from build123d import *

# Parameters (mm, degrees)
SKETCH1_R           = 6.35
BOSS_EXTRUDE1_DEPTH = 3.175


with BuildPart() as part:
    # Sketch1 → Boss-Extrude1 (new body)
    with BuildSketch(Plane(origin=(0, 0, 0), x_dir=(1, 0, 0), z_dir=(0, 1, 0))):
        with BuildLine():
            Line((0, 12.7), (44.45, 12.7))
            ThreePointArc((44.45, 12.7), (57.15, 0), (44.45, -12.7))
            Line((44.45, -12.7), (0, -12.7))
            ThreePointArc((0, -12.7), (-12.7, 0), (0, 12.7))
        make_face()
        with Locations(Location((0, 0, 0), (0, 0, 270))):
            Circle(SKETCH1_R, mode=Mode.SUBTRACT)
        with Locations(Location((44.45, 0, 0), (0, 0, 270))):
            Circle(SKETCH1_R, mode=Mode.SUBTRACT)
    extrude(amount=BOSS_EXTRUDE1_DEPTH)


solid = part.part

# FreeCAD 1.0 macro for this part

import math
import FreeCAD as App
import Part
import Sketcher

V = App.Vector
Q = App.Units.Quantity

doc = App.newDocument("Part")
params = doc.addObject("Spreadsheet::Sheet", "Params")
for row, (alias, value) in enumerate([
    ("sketch1_diameter", "0.5 in"),
    ("sketch1_radius", "0.5 in"),
    ("sketch1_width", "1.75 in"),
    ("pad1_length", "0.125 in"),
], start=1):
    params.set(f"A{row}", alias)
    params.set(f"B{row}", "=" + value)
    params.setAlias(f"B{row}", alias)

body = doc.addObject("PartDesign::Body", "Body")

# Sketch on XZ plane
sketch1 = body.newObject("Sketcher::SketchObject", "Sketch")
sketch1.AttachmentSupport = (doc.getObject("XZ_Plane"), [""])
sketch1.MapMode = "FlatFace"
sketch1.addGeometry([
    Part.LineSegment(V(44, -13, 0), V(0, -13, 0)),  # 0
    Part.ArcOfCircle(Part.Circle(V(0, 0, 0), V(0, 0, 1), 13), math.radians(90), math.radians(270)),  # 1
    Part.LineSegment(V(0, 13, 0), V(44, 13, 0)),  # 2
    Part.ArcOfCircle(Part.Circle(V(44, 0, 0), V(0, 0, 1), 13), math.radians(-90), math.radians(90)),  # 3
    Part.Circle(V(44, 0, 0), V(0, 0, 1), 6),  # 4
    Part.Circle(V(0, 0, 0), V(0, 0, 1), 6),  # 5
], False)
sketch1.addConstraint([
    Sketcher.Constraint("Tangent", 0, 2, 1, 2),
    Sketcher.Constraint("Tangent", 1, 1, 2, 1),
    Sketcher.Constraint("Tangent", 2, 2, 3, 2),
    Sketcher.Constraint("Tangent", 3, 1, 0, 1),
    Sketcher.Constraint("Horizontal", 0),
    Sketcher.Constraint("Horizontal", 2),
    Sketcher.Constraint("Coincident", 1, 3, -1, 1),
    Sketcher.Constraint("Coincident", 5, 3, -1, 1),
    Sketcher.Constraint("Coincident", 4, 3, 3, 3),
    Sketcher.Constraint("Equal", 4, 5),
    Sketcher.Constraint("Diameter", 4, Q("0.5 in")),
    Sketcher.Constraint("Radius", 1, Q("0.5 in")),
    Sketcher.Constraint("DistanceX", 0, 2, 0, 1, Q("1.75 in")),
])
sketch1.setExpression("Constraints[10]", "Params.sketch1_diameter")
sketch1.setExpression("Constraints[11]", "Params.sketch1_radius")
sketch1.setExpression("Constraints[12]", "Params.sketch1_width")
pad1 = body.newObject("PartDesign::Pad", "Pad")
pad1.Profile = sketch1
pad1.setExpression("Length", "Params.pad1_length")
pad1.Reversed = True

doc.recompute()
